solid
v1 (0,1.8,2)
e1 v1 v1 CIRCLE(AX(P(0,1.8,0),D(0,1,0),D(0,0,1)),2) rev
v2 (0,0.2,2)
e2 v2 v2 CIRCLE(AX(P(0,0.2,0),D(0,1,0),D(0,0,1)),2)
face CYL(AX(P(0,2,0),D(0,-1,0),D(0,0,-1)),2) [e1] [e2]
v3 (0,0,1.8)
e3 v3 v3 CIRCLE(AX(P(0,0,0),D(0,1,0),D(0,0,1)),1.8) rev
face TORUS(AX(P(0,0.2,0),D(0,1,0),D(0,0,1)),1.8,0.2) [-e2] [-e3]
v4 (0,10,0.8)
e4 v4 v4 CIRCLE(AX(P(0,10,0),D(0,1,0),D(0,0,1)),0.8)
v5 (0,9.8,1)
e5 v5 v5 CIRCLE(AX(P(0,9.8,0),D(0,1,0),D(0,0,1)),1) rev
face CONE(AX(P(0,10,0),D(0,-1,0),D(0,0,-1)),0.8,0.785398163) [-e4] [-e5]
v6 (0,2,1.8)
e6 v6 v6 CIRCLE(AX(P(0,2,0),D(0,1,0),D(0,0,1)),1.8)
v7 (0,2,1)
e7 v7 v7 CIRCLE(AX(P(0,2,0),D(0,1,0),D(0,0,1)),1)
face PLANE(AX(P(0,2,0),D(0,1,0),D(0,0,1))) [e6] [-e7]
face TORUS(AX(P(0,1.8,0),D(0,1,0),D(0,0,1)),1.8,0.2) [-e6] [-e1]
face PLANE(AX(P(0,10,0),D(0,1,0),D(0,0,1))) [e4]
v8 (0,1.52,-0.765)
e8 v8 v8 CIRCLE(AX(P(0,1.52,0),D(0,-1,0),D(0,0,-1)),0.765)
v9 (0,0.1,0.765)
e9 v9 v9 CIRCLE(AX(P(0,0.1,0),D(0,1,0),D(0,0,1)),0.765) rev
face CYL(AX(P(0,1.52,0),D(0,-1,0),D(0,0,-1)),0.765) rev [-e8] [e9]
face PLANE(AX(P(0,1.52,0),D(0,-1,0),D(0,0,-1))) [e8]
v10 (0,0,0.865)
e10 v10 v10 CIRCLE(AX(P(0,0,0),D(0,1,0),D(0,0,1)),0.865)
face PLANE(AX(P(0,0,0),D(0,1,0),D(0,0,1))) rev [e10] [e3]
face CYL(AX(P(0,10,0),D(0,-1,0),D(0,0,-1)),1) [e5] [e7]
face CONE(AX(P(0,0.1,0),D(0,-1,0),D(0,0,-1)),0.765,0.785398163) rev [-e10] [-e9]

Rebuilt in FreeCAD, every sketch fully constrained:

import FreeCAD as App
import Part
import Sketcher

V = App.Vector
Q = App.Units.Quantity


def edges_at(feature, points):
    """Names of the edges that pass closest to the given points."""
    edges = feature.Shape.Edges
    near = lambda p: min(range(len(edges)), key=lambda i: edges[i].distToShape(Part.Vertex(*p))[0])
    return sorted({f"Edge{near(p) + 1}" for p in points})

doc = App.newDocument("Part")
body = doc.addObject("PartDesign::Body", "Body")

# Sketch on XZ plane
sketch1 = doc.addObject("Sketcher::SketchObject", "Sketch")
body.addObject(sketch1)
sketch1.AttachmentSupport = (doc.XZ_Plane, [""])
sketch1.MapMode = "FlatFace"
sketch1.addGeometry(Part.Circle(V(0, 0, 0), V(0, 0, 1), 2), False)
sketch1.addConstraint([
    Sketcher.Constraint("Coincident", 0, 3, -1, 1),
    Sketcher.Constraint("Diameter", 0, Q("4 mm")),
])
pad1 = doc.addObject("PartDesign::Pad", "Pad")
body.addObject(pad1)
pad1.Profile = sketch1
pad1.Length = 2
pad1.Reversed = True

# Sketch on XZ plane
sketch2 = doc.addObject("Sketcher::SketchObject", "Sketch001")
body.addObject(sketch2)
sketch2.AttachmentSupport = (doc.XZ_Plane, [""])
sketch2.MapMode = "FlatFace"
sketch2.AttachmentOffset = App.Placement(V(0, 0, -2), App.Rotation())
sketch2.addGeometry(Part.Circle(V(0, 0, 0), V(0, 0, 1), 1), False)
sketch2.addConstraint([
    Sketcher.Constraint("Coincident", 0, 3, -1, 1),
    Sketcher.Constraint("Diameter", 0, Q("2 mm")),
])
pad2 = doc.addObject("PartDesign::Pad", "Pad001")
body.addObject(pad2)
pad2.Profile = sketch2
pad2.Length = 8
pad2.Reversed = True
doc.recompute()

fillet = doc.addObject("PartDesign::Fillet", "Fillet")
body.addObject(fillet)
fillet.Base = (pad2, edges_at(pad2, [(0, 0, -2), (0, 2, -2)]))
fillet.Radius = 0.2

# Sketch on XZ plane
sketch3 = doc.addObject("Sketcher::SketchObject", "Sketch002")
body.addObject(sketch3)
sketch3.AttachmentSupport = (doc.XZ_Plane, [""])
sketch3.MapMode = "FlatFace"
sketch3.addGeometry(Part.Circle(V(0, 0, 0), V(0, 0, 1), 0.765), False)
sketch3.addConstraint([
    Sketcher.Constraint("Coincident", 0, 3, -1, 1),
    Sketcher.Constraint("Diameter", 0, Q("1.53 mm")),
])
pocket1 = doc.addObject("PartDesign::Pocket", "Pocket")
body.addObject(pocket1)
pocket1.Profile = sketch3
pocket1.Length = 1.52
doc.recompute()

chamfer = doc.addObject("PartDesign::Chamfer", "Chamfer")
body.addObject(chamfer)
chamfer.Base = (pocket1, edges_at(pocket1, [(0, 0, 0.765)]))
chamfer.Size = 0.1
doc.recompute()

chamfer2 = doc.addObject("PartDesign::Chamfer", "Chamfer001")
body.addObject(chamfer2)
chamfer2.Base = (chamfer, edges_at(chamfer, [(0, 10, -1)]))
chamfer2.Size = 0.2

doc.recompute()
